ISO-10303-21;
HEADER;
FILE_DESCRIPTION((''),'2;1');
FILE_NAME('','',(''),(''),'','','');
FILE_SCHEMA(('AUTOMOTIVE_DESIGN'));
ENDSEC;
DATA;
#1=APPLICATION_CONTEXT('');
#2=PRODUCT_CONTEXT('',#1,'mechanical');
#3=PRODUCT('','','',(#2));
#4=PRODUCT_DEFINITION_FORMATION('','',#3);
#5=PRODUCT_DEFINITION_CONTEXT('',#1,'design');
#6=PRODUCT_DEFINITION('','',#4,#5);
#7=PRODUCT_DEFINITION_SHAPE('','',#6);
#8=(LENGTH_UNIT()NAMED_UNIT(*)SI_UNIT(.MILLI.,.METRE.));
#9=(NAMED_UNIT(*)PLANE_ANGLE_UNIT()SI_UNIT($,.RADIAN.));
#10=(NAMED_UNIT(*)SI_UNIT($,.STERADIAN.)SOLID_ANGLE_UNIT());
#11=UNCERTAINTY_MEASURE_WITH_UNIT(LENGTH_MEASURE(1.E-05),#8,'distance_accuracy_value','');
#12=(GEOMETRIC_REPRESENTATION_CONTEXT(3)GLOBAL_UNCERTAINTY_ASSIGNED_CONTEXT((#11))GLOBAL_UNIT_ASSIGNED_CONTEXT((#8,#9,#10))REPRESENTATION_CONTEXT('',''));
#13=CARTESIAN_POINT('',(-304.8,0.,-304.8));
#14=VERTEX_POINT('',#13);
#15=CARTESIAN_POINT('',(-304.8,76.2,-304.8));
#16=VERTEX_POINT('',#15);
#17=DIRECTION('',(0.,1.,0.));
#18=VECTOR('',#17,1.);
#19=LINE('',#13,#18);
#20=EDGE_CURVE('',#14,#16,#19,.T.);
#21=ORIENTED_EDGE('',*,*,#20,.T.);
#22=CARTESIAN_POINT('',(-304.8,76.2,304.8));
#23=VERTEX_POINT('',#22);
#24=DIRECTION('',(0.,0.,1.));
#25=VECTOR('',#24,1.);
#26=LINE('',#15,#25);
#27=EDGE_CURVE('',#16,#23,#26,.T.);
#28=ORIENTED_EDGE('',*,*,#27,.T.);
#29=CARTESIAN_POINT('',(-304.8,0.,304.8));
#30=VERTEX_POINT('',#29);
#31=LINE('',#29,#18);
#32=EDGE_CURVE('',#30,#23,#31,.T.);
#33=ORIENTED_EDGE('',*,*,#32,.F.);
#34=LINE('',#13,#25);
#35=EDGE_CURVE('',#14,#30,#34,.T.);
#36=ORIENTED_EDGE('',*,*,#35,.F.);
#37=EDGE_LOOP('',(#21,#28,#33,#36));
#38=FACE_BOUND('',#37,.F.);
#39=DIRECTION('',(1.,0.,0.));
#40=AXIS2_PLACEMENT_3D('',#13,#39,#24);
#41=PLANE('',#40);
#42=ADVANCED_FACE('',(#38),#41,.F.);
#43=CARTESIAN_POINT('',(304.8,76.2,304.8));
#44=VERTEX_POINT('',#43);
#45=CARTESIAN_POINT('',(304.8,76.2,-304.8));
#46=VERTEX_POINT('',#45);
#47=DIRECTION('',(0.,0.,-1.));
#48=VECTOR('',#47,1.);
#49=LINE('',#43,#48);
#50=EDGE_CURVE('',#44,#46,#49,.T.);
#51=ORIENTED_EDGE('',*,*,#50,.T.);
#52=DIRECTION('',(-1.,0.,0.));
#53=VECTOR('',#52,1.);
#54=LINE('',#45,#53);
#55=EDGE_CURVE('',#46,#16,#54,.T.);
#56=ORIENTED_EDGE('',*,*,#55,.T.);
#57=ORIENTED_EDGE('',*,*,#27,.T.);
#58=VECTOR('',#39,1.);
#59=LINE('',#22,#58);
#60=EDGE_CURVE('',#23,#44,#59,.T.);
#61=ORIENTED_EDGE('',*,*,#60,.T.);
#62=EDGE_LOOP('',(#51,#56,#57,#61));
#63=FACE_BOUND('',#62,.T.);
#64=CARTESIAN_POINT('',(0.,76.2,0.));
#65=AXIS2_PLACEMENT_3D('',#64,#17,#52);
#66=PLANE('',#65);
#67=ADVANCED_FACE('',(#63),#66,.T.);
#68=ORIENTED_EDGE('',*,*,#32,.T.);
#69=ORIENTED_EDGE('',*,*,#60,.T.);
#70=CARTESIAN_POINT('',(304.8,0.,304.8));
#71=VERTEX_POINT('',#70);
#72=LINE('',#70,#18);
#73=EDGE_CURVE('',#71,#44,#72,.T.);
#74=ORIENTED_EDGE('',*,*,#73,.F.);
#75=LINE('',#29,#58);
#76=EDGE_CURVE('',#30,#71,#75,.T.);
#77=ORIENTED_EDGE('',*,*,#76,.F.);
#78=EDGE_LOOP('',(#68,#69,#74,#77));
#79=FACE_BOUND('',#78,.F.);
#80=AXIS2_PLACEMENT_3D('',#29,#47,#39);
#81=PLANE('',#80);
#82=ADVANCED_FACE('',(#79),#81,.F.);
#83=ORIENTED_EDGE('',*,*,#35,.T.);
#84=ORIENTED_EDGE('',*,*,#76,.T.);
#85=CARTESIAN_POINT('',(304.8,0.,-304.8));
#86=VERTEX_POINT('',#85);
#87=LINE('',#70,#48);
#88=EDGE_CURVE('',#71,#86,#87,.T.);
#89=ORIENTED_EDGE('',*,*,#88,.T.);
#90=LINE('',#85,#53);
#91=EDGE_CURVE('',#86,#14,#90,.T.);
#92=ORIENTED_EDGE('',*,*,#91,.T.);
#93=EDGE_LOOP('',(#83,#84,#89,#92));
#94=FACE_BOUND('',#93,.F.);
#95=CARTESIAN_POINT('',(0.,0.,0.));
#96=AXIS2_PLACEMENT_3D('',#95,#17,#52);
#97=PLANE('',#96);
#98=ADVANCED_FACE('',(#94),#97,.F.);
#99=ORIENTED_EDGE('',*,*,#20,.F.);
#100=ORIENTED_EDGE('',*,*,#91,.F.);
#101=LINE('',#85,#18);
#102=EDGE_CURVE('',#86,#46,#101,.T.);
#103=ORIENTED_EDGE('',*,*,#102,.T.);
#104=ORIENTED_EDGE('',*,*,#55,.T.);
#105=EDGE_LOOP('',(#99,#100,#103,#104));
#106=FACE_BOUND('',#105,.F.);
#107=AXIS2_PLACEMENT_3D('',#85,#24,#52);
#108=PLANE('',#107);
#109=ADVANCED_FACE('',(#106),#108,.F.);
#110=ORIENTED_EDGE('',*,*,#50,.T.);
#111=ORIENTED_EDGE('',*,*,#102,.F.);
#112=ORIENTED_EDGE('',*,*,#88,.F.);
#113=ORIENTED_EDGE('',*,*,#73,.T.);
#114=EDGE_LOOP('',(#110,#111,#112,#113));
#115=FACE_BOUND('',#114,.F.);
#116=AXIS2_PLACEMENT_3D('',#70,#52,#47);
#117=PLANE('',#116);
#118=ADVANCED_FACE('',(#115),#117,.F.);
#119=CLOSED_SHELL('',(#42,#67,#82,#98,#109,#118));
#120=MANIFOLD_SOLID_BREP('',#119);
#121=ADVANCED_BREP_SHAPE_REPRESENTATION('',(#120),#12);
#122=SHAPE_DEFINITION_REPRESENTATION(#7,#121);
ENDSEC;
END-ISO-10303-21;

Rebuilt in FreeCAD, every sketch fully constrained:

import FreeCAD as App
import Part
import Sketcher
Q = App.Units.Quantity


def add_polygon(sketch, points):
    """Adds a closed chain of lines whose ends are joined by coincident constraints."""
    first, n = sketch.GeometryCount, len(points)
    for a, b in zip(points, points[1:] + points[:1]):
        sketch.addGeometry(Part.LineSegment(App.Vector(*a, 0), App.Vector(*b, 0)), False)
    for i in range(n):
        sketch.addConstraint(Sketcher.Constraint("Coincident", first + i, 2, first + (i + 1) % n, 1))

doc = App.newDocument("Part")
body = doc.addObject("PartDesign::Body", "Body")

# Sketch on XZ plane
sketch1 = doc.addObject("Sketcher::SketchObject", "Sketch")
body.addObject(sketch1)
sketch1.AttachmentSupport = (doc.XZ_Plane, [""])
sketch1.MapMode = "FlatFace"
add_polygon(sketch1, [(-304.8, -304.8), (-304.8, 304.8), (304.8, 304.8), (304.8, -304.8)])  # lines 0-3
sketch1.addConstraint([
    Sketcher.Constraint("Vertical", 0),
    Sketcher.Constraint("Horizontal", 1),
    Sketcher.Constraint("Vertical", 2),
    Sketcher.Constraint("Horizontal", 3),
    Sketcher.Constraint("Symmetric", 0, 2, 2, 2, -1, 1),
    Sketcher.Constraint("Equal", 3, 0),
    Sketcher.Constraint("DistanceX", 1, 1, 1, 2, Q("24 in")),
])
pad1 = doc.addObject("PartDesign::Pad", "Pad")
body.addObject(pad1)
pad1.Profile = sketch1
pad1.Length = Q("3 in")
pad1.Reversed = True

doc.recompute()
